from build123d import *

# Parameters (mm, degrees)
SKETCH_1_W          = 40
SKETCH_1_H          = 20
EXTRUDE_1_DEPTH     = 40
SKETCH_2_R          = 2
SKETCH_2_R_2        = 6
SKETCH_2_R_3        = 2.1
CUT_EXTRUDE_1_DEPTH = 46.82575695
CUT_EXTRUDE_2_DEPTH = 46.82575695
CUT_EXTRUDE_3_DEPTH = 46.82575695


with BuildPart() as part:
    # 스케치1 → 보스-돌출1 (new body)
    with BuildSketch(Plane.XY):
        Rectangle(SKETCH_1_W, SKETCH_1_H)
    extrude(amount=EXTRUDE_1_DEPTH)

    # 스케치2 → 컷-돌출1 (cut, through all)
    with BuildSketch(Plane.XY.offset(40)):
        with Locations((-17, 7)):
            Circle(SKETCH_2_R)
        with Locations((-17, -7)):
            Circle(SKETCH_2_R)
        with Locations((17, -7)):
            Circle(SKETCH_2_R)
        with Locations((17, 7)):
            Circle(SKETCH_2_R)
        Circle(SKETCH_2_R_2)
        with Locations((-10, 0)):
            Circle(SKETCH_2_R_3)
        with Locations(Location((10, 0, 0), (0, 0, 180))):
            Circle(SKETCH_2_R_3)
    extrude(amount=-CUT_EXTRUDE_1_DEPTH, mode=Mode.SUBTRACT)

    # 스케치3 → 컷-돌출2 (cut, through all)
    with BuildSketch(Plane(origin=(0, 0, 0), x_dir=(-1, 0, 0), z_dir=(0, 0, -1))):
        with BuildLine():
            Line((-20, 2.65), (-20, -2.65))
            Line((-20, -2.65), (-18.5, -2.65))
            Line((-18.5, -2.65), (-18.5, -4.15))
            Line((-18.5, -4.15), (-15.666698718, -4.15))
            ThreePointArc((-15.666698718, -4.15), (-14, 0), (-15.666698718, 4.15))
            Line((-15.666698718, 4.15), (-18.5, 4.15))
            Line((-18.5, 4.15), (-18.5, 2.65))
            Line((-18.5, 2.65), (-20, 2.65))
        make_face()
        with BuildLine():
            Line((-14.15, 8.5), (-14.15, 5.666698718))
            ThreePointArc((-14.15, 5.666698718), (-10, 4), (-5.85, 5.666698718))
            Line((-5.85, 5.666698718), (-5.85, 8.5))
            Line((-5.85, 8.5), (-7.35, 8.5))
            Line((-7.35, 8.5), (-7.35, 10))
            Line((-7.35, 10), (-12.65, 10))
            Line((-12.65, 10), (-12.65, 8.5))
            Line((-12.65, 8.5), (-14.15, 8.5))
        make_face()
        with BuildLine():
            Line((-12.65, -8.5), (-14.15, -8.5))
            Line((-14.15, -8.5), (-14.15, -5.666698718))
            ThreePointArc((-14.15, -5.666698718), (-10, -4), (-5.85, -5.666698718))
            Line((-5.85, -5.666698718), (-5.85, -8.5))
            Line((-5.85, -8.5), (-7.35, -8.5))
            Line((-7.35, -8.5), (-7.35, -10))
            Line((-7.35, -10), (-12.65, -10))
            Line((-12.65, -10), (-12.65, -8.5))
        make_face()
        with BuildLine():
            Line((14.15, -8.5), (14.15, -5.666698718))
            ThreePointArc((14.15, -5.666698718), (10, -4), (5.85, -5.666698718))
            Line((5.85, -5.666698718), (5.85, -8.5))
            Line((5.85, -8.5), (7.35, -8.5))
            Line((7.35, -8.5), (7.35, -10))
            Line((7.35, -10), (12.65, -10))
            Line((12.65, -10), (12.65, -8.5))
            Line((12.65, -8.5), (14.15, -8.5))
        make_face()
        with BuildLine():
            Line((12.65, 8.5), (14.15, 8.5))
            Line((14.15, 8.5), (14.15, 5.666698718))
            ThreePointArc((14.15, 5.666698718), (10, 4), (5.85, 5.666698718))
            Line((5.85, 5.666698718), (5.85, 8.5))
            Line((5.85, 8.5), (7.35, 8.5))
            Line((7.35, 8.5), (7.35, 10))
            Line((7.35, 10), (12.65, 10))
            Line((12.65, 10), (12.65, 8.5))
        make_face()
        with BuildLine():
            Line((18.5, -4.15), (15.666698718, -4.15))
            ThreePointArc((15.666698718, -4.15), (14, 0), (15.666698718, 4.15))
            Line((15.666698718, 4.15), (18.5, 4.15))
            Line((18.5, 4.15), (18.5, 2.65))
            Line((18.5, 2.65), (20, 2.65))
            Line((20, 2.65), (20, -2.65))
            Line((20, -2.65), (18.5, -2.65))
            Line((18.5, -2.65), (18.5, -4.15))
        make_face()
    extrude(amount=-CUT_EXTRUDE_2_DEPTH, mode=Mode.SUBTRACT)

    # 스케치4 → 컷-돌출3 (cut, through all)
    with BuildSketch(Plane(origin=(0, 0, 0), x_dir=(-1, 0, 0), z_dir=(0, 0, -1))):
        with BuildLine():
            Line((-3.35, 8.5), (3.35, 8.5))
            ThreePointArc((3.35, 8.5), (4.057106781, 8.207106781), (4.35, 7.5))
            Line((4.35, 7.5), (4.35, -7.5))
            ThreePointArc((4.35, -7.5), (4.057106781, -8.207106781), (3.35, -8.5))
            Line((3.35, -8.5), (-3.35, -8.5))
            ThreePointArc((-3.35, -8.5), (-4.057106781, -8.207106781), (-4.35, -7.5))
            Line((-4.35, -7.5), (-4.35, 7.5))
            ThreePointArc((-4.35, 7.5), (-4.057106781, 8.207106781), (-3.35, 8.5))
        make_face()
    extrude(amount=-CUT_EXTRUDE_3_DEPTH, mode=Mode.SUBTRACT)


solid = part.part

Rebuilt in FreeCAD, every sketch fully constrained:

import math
import FreeCAD as App
import Part
import Sketcher
from FreeCAD import Vector
Q = App.Units.Quantity


def add_polygon(sketch, points):
    """Adds a closed chain of lines whose ends are joined by coincident constraints."""
    first, n = sketch.GeometryCount, len(points)
    for a, b in zip(points, points[1:] + points[:1]):
        sketch.addGeometry(Part.LineSegment(App.Vector(*a, 0), App.Vector(*b, 0)), False)
    for i in range(n):
        sketch.addConstraint(Sketcher.Constraint("Coincident", first + i, 2, first + (i + 1) % n, 1))

doc = App.newDocument("Part")
body = doc.addObject("PartDesign::Body", "Body")

# Sketch on XY plane
sketch1 = body.newObject("Sketcher::SketchObject", "Sketch")
sketch1.AttachmentSupport = (doc.getObject("XY_Plane"), [""])
sketch1.MapMode = "FlatFace"
add_polygon(sketch1, [(-20, 10), (-20, -10), (20, -10), (20, 10)])  # lines 0-3
sketch1.addConstraint(Sketcher.Constraint("Vertical", 0))
sketch1.addConstraint(Sketcher.Constraint("Horizontal", 1))
sketch1.addConstraint(Sketcher.Constraint("Vertical", 2))
sketch1.addConstraint(Sketcher.Constraint("Horizontal", 3))
sketch1.addConstraint(Sketcher.Constraint("Symmetric", 0, 2, 2, 2, -1, 1))
sketch1.addConstraint(Sketcher.Constraint("DistanceX", 1, 1, 1, 2, Q("40 mm")))
sketch1.addConstraint(Sketcher.Constraint("DistanceY", 0, 2, 0, 1, Q("20 mm")))
pad1 = body.newObject("PartDesign::Pad", "Pad")
pad1.Profile = sketch1
pad1.Length = 40

# Sketch on XY plane
sketch2 = body.newObject("Sketcher::SketchObject", "Sketch001")
sketch2.AttachmentSupport = (doc.getObject("XY_Plane"), [""])
sketch2.MapMode = "FlatFace"
sketch2.AttachmentOffset = App.Placement(Vector(0, 0, 40), App.Rotation())
sketch2.addGeometry(Part.Circle(Vector(-17, 7, 0), Vector(0, 0, 1), 2), False)
sketch2.addGeometry(Part.Circle(Vector(-17, -7, 0), Vector(0, 0, 1), 2), False)
sketch2.addGeometry(Part.Circle(Vector(17, -7, 0), Vector(0, 0, 1), 2), False)
sketch2.addGeometry(Part.Circle(Vector(17, 7, 0), Vector(0, 0, 1), 2), False)
sketch2.addGeometry(Part.Circle(Vector(0, 0, 0), Vector(0, 0, 1), 6), False)
sketch2.addGeometry(Part.Circle(Vector(-10, 0, 0), Vector(0, 0, 1), 2.1), False)
sketch2.addGeometry(Part.Circle(Vector(10, 0, 0), Vector(0, 0, 1), 2.1), False)
sketch2.addConstraint(Sketcher.Constraint("Coincident", 4, 3, -1, 1))
sketch2.addConstraint(Sketcher.Constraint("Equal", 0, 1))
sketch2.addConstraint(Sketcher.Constraint("Equal", 1, 2))
sketch2.addConstraint(Sketcher.Constraint("Equal", 2, 3))
sketch2.addConstraint(Sketcher.Constraint("Equal", 5, 6))
sketch2.addConstraint(Sketcher.Constraint("Symmetric", 0, 3, 2, 3, -1, 1))
sketch2.addConstraint(Sketcher.Constraint("Symmetric", 1, 3, 3, 3, -1, 1))
sketch2.addConstraint(Sketcher.Constraint("Symmetric", 5, 3, 6, 3, -1, 1))
sketch2.addConstraint(Sketcher.Constraint("Symmetric", 1, 3, 2, 3, -2))
sketch2.addConstraint(Sketcher.Constraint("PointOnObject", 5, 3, -1))
sketch2.addConstraint(Sketcher.Constraint("Diameter", 0, Q("4 mm")))
sketch2.addConstraint(Sketcher.Constraint("Diameter", 4, Q("12 mm")))
sketch2.addConstraint(Sketcher.Constraint("Diameter", 5, Q("4.2 mm")))
sketch2.addConstraint(Sketcher.Constraint("DistanceX", 0, 3, -1, 1, Q("17 mm")))
sketch2.addConstraint(Sketcher.Constraint("DistanceY", -1, 1, 0, 3, Q("7 mm")))
sketch2.addConstraint(Sketcher.Constraint("DistanceX", 5, 3, -1, 1, Q("10 mm")))
pocket1 = body.newObject("PartDesign::Pocket", "Pocket")
pocket1.Profile = sketch2
pocket1.Type = "ThroughAll"

# Sketch on XY plane
sketch3 = body.newObject("Sketcher::SketchObject", "Sketch002")
sketch3.AttachmentSupport = (doc.getObject("XY_Plane"), [""])
sketch3.MapMode = "FlatFace"
sketch3.addGeometry(Part.LineSegment(Vector(20, 2.65, 0), Vector(20, -2.65, 0)), False)
sketch3.addGeometry(Part.LineSegment(Vector(20, -2.65, 0), Vector(18.5, -2.65, 0)), False)
sketch3.addGeometry(Part.LineSegment(Vector(18.5, -2.65, 0), Vector(18.5, -4.15, 0)), False)
sketch3.addGeometry(Part.LineSegment(Vector(18.5, -4.15, 0), Vector(15.666699, -4.15, 0)), False)
sketch3.addGeometry(Part.ArcOfCircle(Part.Circle(Vector(20, 0, 0), Vector(0, 0, 1), 6), math.radians(136.237815), math.radians(223.762185)), False)
sketch3.addGeometry(Part.LineSegment(Vector(15.666699, 4.15, 0), Vector(18.5, 4.15, 0)), False)
sketch3.addGeometry(Part.LineSegment(Vector(18.5, 4.15, 0), Vector(18.5, 2.65, 0)), False)
sketch3.addGeometry(Part.LineSegment(Vector(18.5, 2.65, 0), Vector(20, 2.65, 0)), False)
sketch3.addGeometry(Part.LineSegment(Vector(14.15, 8.5, 0), Vector(14.15, 5.666699, 0)), False)
sketch3.addGeometry(Part.ArcOfCircle(Part.Circle(Vector(10, 10, 0), Vector(0, 0, 1), 6), math.radians(-133.762185), math.radians(-46.237815)), False)
sketch3.addGeometry(Part.LineSegment(Vector(5.85, 5.666699, 0), Vector(5.85, 8.5, 0)), False)
sketch3.addGeometry(Part.LineSegment(Vector(5.85, 8.5, 0), Vector(7.35, 8.5, 0)), False)
sketch3.addGeometry(Part.LineSegment(Vector(7.35, 8.5, 0), Vector(7.35, 10, 0)), False)
sketch3.addGeometry(Part.LineSegment(Vector(7.35, 10, 0), Vector(12.65, 10, 0)), False)
sketch3.addGeometry(Part.LineSegment(Vector(12.65, 10, 0), Vector(12.65, 8.5, 0)), False)
sketch3.addGeometry(Part.LineSegment(Vector(12.65, 8.5, 0), Vector(14.15, 8.5, 0)), False)
sketch3.addGeometry(Part.LineSegment(Vector(14.15, -8.5, 0), Vector(12.65, -8.5, 0)), False)
sketch3.addGeometry(Part.LineSegment(Vector(12.65, -8.5, 0), Vector(12.65, -10, 0)), False)
sketch3.addGeometry(Part.LineSegment(Vector(12.65, -10, 0), Vector(7.35, -10, 0)), False)
sketch3.addGeometry(Part.LineSegment(Vector(7.35, -10, 0), Vector(7.35, -8.5, 0)), False)
sketch3.addGeometry(Part.LineSegment(Vector(7.35, -8.5, 0), Vector(5.85, -8.5, 0)), False)
sketch3.addGeometry(Part.LineSegment(Vector(5.85, -8.5, 0), Vector(5.85, -5.666699, 0)), False)
sketch3.addGeometry(Part.ArcOfCircle(Part.Circle(Vector(10, -10, 0), Vector(0, 0, 1), 6), math.radians(46.237815), math.radians(133.762185)), False)
sketch3.addGeometry(Part.LineSegment(Vector(14.15, -5.666699, 0), Vector(14.15, -8.5, 0)), False)
sketch3.addGeometry(Part.LineSegment(Vector(-14.15, -8.5, 0), Vector(-14.15, -5.666699, 0)), False)
sketch3.addGeometry(Part.ArcOfCircle(Part.Circle(Vector(-10, -10, 0), Vector(0, 0, 1), 6), math.radians(46.237815), math.radians(133.762185)), False)
sketch3.addGeometry(Part.LineSegment(Vector(-5.85, -5.666699, 0), Vector(-5.85, -8.5, 0)), False)
sketch3.addGeometry(Part.LineSegment(Vector(-5.85, -8.5, 0), Vector(-7.35, -8.5, 0)), False)
sketch3.addGeometry(Part.LineSegment(Vector(-7.35, -8.5, 0), Vector(-7.35, -10, 0)), False)
sketch3.addGeometry(Part.LineSegment(Vector(-7.35, -10, 0), Vector(-12.65, -10, 0)), False)
sketch3.addGeometry(Part.LineSegment(Vector(-12.65, -10, 0), Vector(-12.65, -8.5, 0)), False)
sketch3.addGeometry(Part.LineSegment(Vector(-12.65, -8.5, 0), Vector(-14.15, -8.5, 0)), False)
sketch3.addGeometry(Part.LineSegment(Vector(-14.15, 8.5, 0), Vector(-12.65, 8.5, 0)), False)
sketch3.addGeometry(Part.LineSegment(Vector(-12.65, 8.5, 0), Vector(-12.65, 10, 0)), False)
sketch3.addGeometry(Part.LineSegment(Vector(-12.65, 10, 0), Vector(-7.35, 10, 0)), False)
sketch3.addGeometry(Part.LineSegment(Vector(-7.35, 10, 0), Vector(-7.35, 8.5, 0)), False)
sketch3.addGeometry(Part.LineSegment(Vector(-7.35, 8.5, 0), Vector(-5.85, 8.5, 0)), False)
sketch3.addGeometry(Part.LineSegment(Vector(-5.85, 8.5, 0), Vector(-5.85, 5.666699, 0)), False)
sketch3.addGeometry(Part.ArcOfCircle(Part.Circle(Vector(-10, 10, 0), Vector(0, 0, 1), 6), math.radians(-133.762185), math.radians(-46.237815)), False)
sketch3.addGeometry(Part.LineSegment(Vector(-14.15, 5.666699, 0), Vector(-14.15, 8.5, 0)), False)
sketch3.addGeometry(Part.LineSegment(Vector(-15.666699, -4.15, 0), Vector(-18.5, -4.15, 0)), False)
sketch3.addGeometry(Part.LineSegment(Vector(-18.5, -4.15, 0), Vector(-18.5, -2.65, 0)), False)
sketch3.addGeometry(Part.LineSegment(Vector(-18.5, -2.65, 0), Vector(-20, -2.65, 0)), False)
sketch3.addGeometry(Part.LineSegment(Vector(-20, -2.65, 0), Vector(-20, 2.65, 0)), False)
sketch3.addGeometry(Part.LineSegment(Vector(-20, 2.65, 0), Vector(-18.5, 2.65, 0)), False)
sketch3.addGeometry(Part.LineSegment(Vector(-18.5, 2.65, 0), Vector(-18.5, 4.15, 0)), False)
sketch3.addGeometry(Part.LineSegment(Vector(-18.5, 4.15, 0), Vector(-15.666699, 4.15, 0)), False)
sketch3.addGeometry(Part.ArcOfCircle(Part.Circle(Vector(-20, 0, 0), Vector(0, 0, 1), 6), math.radians(-43.762185), math.radians(43.762185)), False)
sketch3.addConstraint(Sketcher.Constraint("Coincident", 0, 2, 1, 1))
sketch3.addConstraint(Sketcher.Constraint("Coincident", 1, 2, 2, 1))
sketch3.addConstraint(Sketcher.Constraint("Coincident", 2, 2, 3, 1))
sketch3.addConstraint(Sketcher.Constraint("Coincident", 3, 2, 4, 2))
sketch3.addConstraint(Sketcher.Constraint("Coincident", 4, 1, 5, 1))
sketch3.addConstraint(Sketcher.Constraint("Coincident", 5, 2, 6, 1))
sketch3.addConstraint(Sketcher.Constraint("Coincident", 6, 2, 7, 1))
sketch3.addConstraint(Sketcher.Constraint("Coincident", 7, 2, 0, 1))
sketch3.addConstraint(Sketcher.Constraint("Coincident", 8, 2, 9, 2))
sketch3.addConstraint(Sketcher.Constraint("Coincident", 9, 1, 10, 1))
sketch3.addConstraint(Sketcher.Constraint("Coincident", 10, 2, 11, 1))
sketch3.addConstraint(Sketcher.Constraint("Coincident", 11, 2, 12, 1))
sketch3.addConstraint(Sketcher.Constraint("Coincident", 12, 2, 13, 1))
sketch3.addConstraint(Sketcher.Constraint("Coincident", 13, 2, 14, 1))
sketch3.addConstraint(Sketcher.Constraint("Coincident", 14, 2, 15, 1))
sketch3.addConstraint(Sketcher.Constraint("Coincident", 15, 2, 8, 1))
sketch3.addConstraint(Sketcher.Constraint("Coincident", 16, 2, 17, 1))
sketch3.addConstraint(Sketcher.Constraint("Coincident", 17, 2, 18, 1))
sketch3.addConstraint(Sketcher.Constraint("Coincident", 18, 2, 19, 1))
sketch3.addConstraint(Sketcher.Constraint("Coincident", 19, 2, 20, 1))
sketch3.addConstraint(Sketcher.Constraint("Coincident", 20, 2, 21, 1))
sketch3.addConstraint(Sketcher.Constraint("Coincident", 21, 2, 22, 2))
sketch3.addConstraint(Sketcher.Constraint("Coincident", 22, 1, 23, 1))
sketch3.addConstraint(Sketcher.Constraint("Coincident", 23, 2, 16, 1))
sketch3.addConstraint(Sketcher.Constraint("Coincident", 24, 2, 25, 2))
sketch3.addConstraint(Sketcher.Constraint("Coincident", 25, 1, 26, 1))
sketch3.addConstraint(Sketcher.Constraint("Coincident", 26, 2, 27, 1))
sketch3.addConstraint(Sketcher.Constraint("Coincident", 27, 2, 28, 1))
sketch3.addConstraint(Sketcher.Constraint("Coincident", 28, 2, 29, 1))
sketch3.addConstraint(Sketcher.Constraint("Coincident", 29, 2, 30, 1))
sketch3.addConstraint(Sketcher.Constraint("Coincident", 30, 2, 31, 1))
sketch3.addConstraint(Sketcher.Constraint("Coincident", 31, 2, 24, 1))
sketch3.addConstraint(Sketcher.Constraint("Coincident", 32, 2, 33, 1))
sketch3.addConstraint(Sketcher.Constraint("Coincident", 33, 2, 34, 1))
sketch3.addConstraint(Sketcher.Constraint("Coincident", 34, 2, 35, 1))
sketch3.addConstraint(Sketcher.Constraint("Coincident", 35, 2, 36, 1))
sketch3.addConstraint(Sketcher.Constraint("Coincident", 36, 2, 37, 1))
sketch3.addConstraint(Sketcher.Constraint("Coincident", 37, 2, 38, 2))
sketch3.addConstraint(Sketcher.Constraint("Coincident", 38, 1, 39, 1))
sketch3.addConstraint(Sketcher.Constraint("Coincident", 39, 2, 32, 1))
sketch3.addConstraint(Sketcher.Constraint("Coincident", 40, 2, 41, 1))
sketch3.addConstraint(Sketcher.Constraint("Coincident", 41, 2, 42, 1))
sketch3.addConstraint(Sketcher.Constraint("Coincident", 42, 2, 43, 1))
sketch3.addConstraint(Sketcher.Constraint("Coincident", 43, 2, 44, 1))
sketch3.addConstraint(Sketcher.Constraint("Coincident", 44, 2, 45, 1))
sketch3.addConstraint(Sketcher.Constraint("Coincident", 45, 2, 46, 1))
sketch3.addConstraint(Sketcher.Constraint("Coincident", 46, 2, 47, 2))
sketch3.addConstraint(Sketcher.Constraint("Coincident", 47, 1, 40, 1))
sketch3.addConstraint(Sketcher.Constraint("Vertical", 0))
sketch3.addConstraint(Sketcher.Constraint("Horizontal", 1))
sketch3.addConstraint(Sketcher.Constraint("Vertical", 2))
sketch3.addConstraint(Sketcher.Constraint("Horizontal", 3))
sketch3.addConstraint(Sketcher.Constraint("Horizontal", 5))
sketch3.addConstraint(Sketcher.Constraint("Vertical", 6))
sketch3.addConstraint(Sketcher.Constraint("Horizontal", 7))
sketch3.addConstraint(Sketcher.Constraint("Vertical", 8))
sketch3.addConstraint(Sketcher.Constraint("Vertical", 10))
sketch3.addConstraint(Sketcher.Constraint("Horizontal", 11))
sketch3.addConstraint(Sketcher.Constraint("Vertical", 12))
sketch3.addConstraint(Sketcher.Constraint("Horizontal", 13))
sketch3.addConstraint(Sketcher.Constraint("Vertical", 14))
sketch3.addConstraint(Sketcher.Constraint("Horizontal", 15))
sketch3.addConstraint(Sketcher.Constraint("Horizontal", 16))
sketch3.addConstraint(Sketcher.Constraint("Vertical", 17))
sketch3.addConstraint(Sketcher.Constraint("Horizontal", 18))
sketch3.addConstraint(Sketcher.Constraint("Vertical", 19))
sketch3.addConstraint(Sketcher.Constraint("Horizontal", 20))
sketch3.addConstraint(Sketcher.Constraint("Vertical", 21))
sketch3.addConstraint(Sketcher.Constraint("Vertical", 23))
sketch3.addConstraint(Sketcher.Constraint("Vertical", 24))
sketch3.addConstraint(Sketcher.Constraint("Vertical", 26))
sketch3.addConstraint(Sketcher.Constraint("Horizontal", 27))
sketch3.addConstraint(Sketcher.Constraint("Vertical", 28))
sketch3.addConstraint(Sketcher.Constraint("Horizontal", 29))
sketch3.addConstraint(Sketcher.Constraint("Vertical", 30))
sketch3.addConstraint(Sketcher.Constraint("Horizontal", 31))
sketch3.addConstraint(Sketcher.Constraint("Horizontal", 32))
sketch3.addConstraint(Sketcher.Constraint("Vertical", 33))
sketch3.addConstraint(Sketcher.Constraint("Horizontal", 34))
sketch3.addConstraint(Sketcher.Constraint("Vertical", 35))
sketch3.addConstraint(Sketcher.Constraint("Horizontal", 36))
sketch3.addConstraint(Sketcher.Constraint("Vertical", 37))
sketch3.addConstraint(Sketcher.Constraint("Vertical", 39))
sketch3.addConstraint(Sketcher.Constraint("Horizontal", 40))
sketch3.addConstraint(Sketcher.Constraint("Vertical", 41))
sketch3.addConstraint(Sketcher.Constraint("Horizontal", 42))
sketch3.addConstraint(Sketcher.Constraint("Vertical", 43))
sketch3.addConstraint(Sketcher.Constraint("Horizontal", 44))
sketch3.addConstraint(Sketcher.Constraint("Vertical", 45))
sketch3.addConstraint(Sketcher.Constraint("Horizontal", 46))
sketch3.addConstraint(Sketcher.Constraint("Equal", 4, 9))
sketch3.addConstraint(Sketcher.Constraint("Equal", 9, 22))
sketch3.addConstraint(Sketcher.Constraint("Equal", 22, 25))
sketch3.addConstraint(Sketcher.Constraint("Equal", 25, 38))
sketch3.addConstraint(Sketcher.Constraint("Equal", 38, 47))
sketch3.addConstraint(Sketcher.Constraint("Symmetric", 9, 3, 25, 3, -1, 1))
sketch3.addConstraint(Sketcher.Constraint("Symmetric", 22, 3, 38, 3, -1, 1))
sketch3.addConstraint(Sketcher.Constraint("Symmetric", 4, 3, 47, 3, -1, 1))
sketch3.addConstraint(Sketcher.Constraint("Symmetric", 10, 2, 26, 2, -1, 1))
sketch3.addConstraint(Sketcher.Constraint("Symmetric", 12, 2, 28, 2, -1, 1))
sketch3.addConstraint(Sketcher.Constraint("Symmetric", 14, 2, 30, 2, -1, 1))
sketch3.addConstraint(Sketcher.Constraint("Symmetric", 16, 2, 32, 2, -1, 1))
sketch3.addConstraint(Sketcher.Constraint("Symmetric", 18, 2, 34, 2, -1, 1))
sketch3.addConstraint(Sketcher.Constraint("Symmetric", 20, 2, 36, 2, -1, 1))
sketch3.addConstraint(Sketcher.Constraint("Symmetric", 5, 2, 40, 2, -1, 1))
sketch3.addConstraint(Sketcher.Constraint("Symmetric", 7, 2, 42, 2, -1, 1))
sketch3.addConstraint(Sketcher.Constraint("Symmetric", 1, 2, 44, 2, -1, 1))
sketch3.addConstraint(Sketcher.Constraint("Symmetric", 22, 3, 25, 3, -2))
sketch3.addConstraint(Sketcher.Constraint("Symmetric", 20, 2, 26, 2, -2))
sketch3.addConstraint(Sketcher.Constraint("Symmetric", 18, 2, 28, 2, -2))
sketch3.addConstraint(Sketcher.Constraint("Symmetric", 16, 2, 30, 2, -2))
sketch3.addConstraint(Sketcher.Constraint("Symmetric", 2, 2, 40, 2, -2))
sketch3.addConstraint(Sketcher.Constraint("Symmetric", 4, 1, 46, 2, -2))
sketch3.addConstraint(Sketcher.Constraint("Horizontal", 8, 2, 9, 1))
sketch3.addConstraint(Sketcher.Constraint("Horizontal", 38, 3, 12, 2))
sketch3.addConstraint(Sketcher.Constraint("Horizontal", 11, 2, 14, 2))
sketch3.addConstraint(Sketcher.Constraint("Horizontal", 21, 2, 22, 1))
sketch3.addConstraint(Sketcher.Constraint("Horizontal", 22, 1, 24, 2))
sketch3.addConstraint(Sketcher.Constraint("Horizontal", 37, 2, 38, 1))
sketch3.addConstraint(Sketcher.Constraint("Horizontal", 1, 2, 41, 2))
sketch3.addConstraint(Sketcher.Constraint("Vertical", 4, 3, 0, 2))
sketch3.addConstraint(Sketcher.Constraint("Equal", 7, 11))
sketch3.addConstraint(Sketcher.Constraint("Equal", 11, 15))
sketch3.addConstraint(Sketcher.Constraint("Equal", 34, 0))
sketch3.addConstraint(Sketcher.Constraint("Equal", 44, 2))
sketch3.addConstraint(Sketcher.Constraint("Equal", 46, 8))
sketch3.addConstraint(Sketcher.Constraint("Radius", 4, Q("6 mm")))
sketch3.addConstraint(Sketcher.Constraint("DistanceX", 1, 2, 1, 1, Q("1.5 mm")))
sketch3.addConstraint(Sketcher.Constraint("DistanceX", 13, 1, 13, 2, Q("5.3 mm")))
sketch3.addConstraint(Sketcher.Constraint("DistanceX", -1, 1, 4, 3, Q("20 mm")))
sketch3.addConstraint(Sketcher.Constraint("DistanceX", -1, 1, 9, 3, Q("10 mm")))
sketch3.addConstraint(Sketcher.Constraint("DistanceY", -1, 1, 9, 3, Q("10 mm")))
pocket2 = body.newObject("PartDesign::Pocket", "Pocket001")
pocket2.Profile = sketch3
pocket2.Type = "ThroughAll"
pocket2.Reversed = True

# Sketch on XY plane
sketch4 = body.newObject("Sketcher::SketchObject", "Sketch003")
sketch4.AttachmentSupport = (doc.getObject("XY_Plane"), [""])
sketch4.MapMode = "FlatFace"
sketch4.addGeometry(Part.LineSegment(Vector(-3.35, 8.5, 0), Vector(3.35, 8.5, 0)), False)
sketch4.addGeometry(Part.ArcOfCircle(Part.Circle(Vector(3.35, 7.5, 0), Vector(0, 0, 1), 1), math.radians(0), math.radians(90)), False)
sketch4.addGeometry(Part.LineSegment(Vector(4.35, 7.5, 0), Vector(4.35, -7.5, 0)), False)
sketch4.addGeometry(Part.ArcOfCircle(Part.Circle(Vector(3.35, -7.5, 0), Vector(0, 0, 1), 1), math.radians(-90), math.radians(0)), False)
sketch4.addGeometry(Part.LineSegment(Vector(3.35, -8.5, 0), Vector(-3.35, -8.5, 0)), False)
sketch4.addGeometry(Part.ArcOfCircle(Part.Circle(Vector(-3.35, -7.5, 0), Vector(0, 0, 1), 1), math.radians(-180), math.radians(-90)), False)
sketch4.addGeometry(Part.LineSegment(Vector(-4.35, -7.5, 0), Vector(-4.35, 7.5, 0)), False)
sketch4.addGeometry(Part.ArcOfCircle(Part.Circle(Vector(-3.35, 7.5, 0), Vector(0, 0, 1), 1), math.radians(90), math.radians(180)), False)
sketch4.addConstraint(Sketcher.Constraint("Tangent", 0, 2, 1, 2))
sketch4.addConstraint(Sketcher.Constraint("Tangent", 1, 1, 2, 1))
sketch4.addConstraint(Sketcher.Constraint("Tangent", 2, 2, 3, 2))
sketch4.addConstraint(Sketcher.Constraint("Tangent", 3, 1, 4, 1))
sketch4.addConstraint(Sketcher.Constraint("Tangent", 4, 2, 5, 2))
sketch4.addConstraint(Sketcher.Constraint("Tangent", 5, 1, 6, 1))
sketch4.addConstraint(Sketcher.Constraint("Tangent", 6, 2, 7, 2))
sketch4.addConstraint(Sketcher.Constraint("Tangent", 7, 1, 0, 1))
sketch4.addConstraint(Sketcher.Constraint("Horizontal", 0))
sketch4.addConstraint(Sketcher.Constraint("Vertical", 2))
sketch4.addConstraint(Sketcher.Constraint("Horizontal", 4))
sketch4.addConstraint(Sketcher.Constraint("Vertical", 6))
sketch4.addConstraint(Sketcher.Constraint("Equal", 1, 3))
sketch4.addConstraint(Sketcher.Constraint("Equal", 3, 5))
sketch4.addConstraint(Sketcher.Constraint("Equal", 5, 7))
sketch4.addConstraint(Sketcher.Constraint("Symmetric", 1, 3, 5, 3, -1, 1))
sketch4.addConstraint(Sketcher.Constraint("Radius", 1, Q("1 mm")))
sketch4.addConstraint(Sketcher.Constraint("DistanceY", 2, 2, 2, 1, Q("15 mm")))
sketch4.addConstraint(Sketcher.Constraint("DistanceX", 0, 1, 0, 2, Q("6.7 mm")))
pocket3 = body.newObject("PartDesign::Pocket", "Pocket002")
pocket3.Profile = sketch4
pocket3.Type = "ThroughAll"
pocket3.Reversed = True

doc.recompute()
